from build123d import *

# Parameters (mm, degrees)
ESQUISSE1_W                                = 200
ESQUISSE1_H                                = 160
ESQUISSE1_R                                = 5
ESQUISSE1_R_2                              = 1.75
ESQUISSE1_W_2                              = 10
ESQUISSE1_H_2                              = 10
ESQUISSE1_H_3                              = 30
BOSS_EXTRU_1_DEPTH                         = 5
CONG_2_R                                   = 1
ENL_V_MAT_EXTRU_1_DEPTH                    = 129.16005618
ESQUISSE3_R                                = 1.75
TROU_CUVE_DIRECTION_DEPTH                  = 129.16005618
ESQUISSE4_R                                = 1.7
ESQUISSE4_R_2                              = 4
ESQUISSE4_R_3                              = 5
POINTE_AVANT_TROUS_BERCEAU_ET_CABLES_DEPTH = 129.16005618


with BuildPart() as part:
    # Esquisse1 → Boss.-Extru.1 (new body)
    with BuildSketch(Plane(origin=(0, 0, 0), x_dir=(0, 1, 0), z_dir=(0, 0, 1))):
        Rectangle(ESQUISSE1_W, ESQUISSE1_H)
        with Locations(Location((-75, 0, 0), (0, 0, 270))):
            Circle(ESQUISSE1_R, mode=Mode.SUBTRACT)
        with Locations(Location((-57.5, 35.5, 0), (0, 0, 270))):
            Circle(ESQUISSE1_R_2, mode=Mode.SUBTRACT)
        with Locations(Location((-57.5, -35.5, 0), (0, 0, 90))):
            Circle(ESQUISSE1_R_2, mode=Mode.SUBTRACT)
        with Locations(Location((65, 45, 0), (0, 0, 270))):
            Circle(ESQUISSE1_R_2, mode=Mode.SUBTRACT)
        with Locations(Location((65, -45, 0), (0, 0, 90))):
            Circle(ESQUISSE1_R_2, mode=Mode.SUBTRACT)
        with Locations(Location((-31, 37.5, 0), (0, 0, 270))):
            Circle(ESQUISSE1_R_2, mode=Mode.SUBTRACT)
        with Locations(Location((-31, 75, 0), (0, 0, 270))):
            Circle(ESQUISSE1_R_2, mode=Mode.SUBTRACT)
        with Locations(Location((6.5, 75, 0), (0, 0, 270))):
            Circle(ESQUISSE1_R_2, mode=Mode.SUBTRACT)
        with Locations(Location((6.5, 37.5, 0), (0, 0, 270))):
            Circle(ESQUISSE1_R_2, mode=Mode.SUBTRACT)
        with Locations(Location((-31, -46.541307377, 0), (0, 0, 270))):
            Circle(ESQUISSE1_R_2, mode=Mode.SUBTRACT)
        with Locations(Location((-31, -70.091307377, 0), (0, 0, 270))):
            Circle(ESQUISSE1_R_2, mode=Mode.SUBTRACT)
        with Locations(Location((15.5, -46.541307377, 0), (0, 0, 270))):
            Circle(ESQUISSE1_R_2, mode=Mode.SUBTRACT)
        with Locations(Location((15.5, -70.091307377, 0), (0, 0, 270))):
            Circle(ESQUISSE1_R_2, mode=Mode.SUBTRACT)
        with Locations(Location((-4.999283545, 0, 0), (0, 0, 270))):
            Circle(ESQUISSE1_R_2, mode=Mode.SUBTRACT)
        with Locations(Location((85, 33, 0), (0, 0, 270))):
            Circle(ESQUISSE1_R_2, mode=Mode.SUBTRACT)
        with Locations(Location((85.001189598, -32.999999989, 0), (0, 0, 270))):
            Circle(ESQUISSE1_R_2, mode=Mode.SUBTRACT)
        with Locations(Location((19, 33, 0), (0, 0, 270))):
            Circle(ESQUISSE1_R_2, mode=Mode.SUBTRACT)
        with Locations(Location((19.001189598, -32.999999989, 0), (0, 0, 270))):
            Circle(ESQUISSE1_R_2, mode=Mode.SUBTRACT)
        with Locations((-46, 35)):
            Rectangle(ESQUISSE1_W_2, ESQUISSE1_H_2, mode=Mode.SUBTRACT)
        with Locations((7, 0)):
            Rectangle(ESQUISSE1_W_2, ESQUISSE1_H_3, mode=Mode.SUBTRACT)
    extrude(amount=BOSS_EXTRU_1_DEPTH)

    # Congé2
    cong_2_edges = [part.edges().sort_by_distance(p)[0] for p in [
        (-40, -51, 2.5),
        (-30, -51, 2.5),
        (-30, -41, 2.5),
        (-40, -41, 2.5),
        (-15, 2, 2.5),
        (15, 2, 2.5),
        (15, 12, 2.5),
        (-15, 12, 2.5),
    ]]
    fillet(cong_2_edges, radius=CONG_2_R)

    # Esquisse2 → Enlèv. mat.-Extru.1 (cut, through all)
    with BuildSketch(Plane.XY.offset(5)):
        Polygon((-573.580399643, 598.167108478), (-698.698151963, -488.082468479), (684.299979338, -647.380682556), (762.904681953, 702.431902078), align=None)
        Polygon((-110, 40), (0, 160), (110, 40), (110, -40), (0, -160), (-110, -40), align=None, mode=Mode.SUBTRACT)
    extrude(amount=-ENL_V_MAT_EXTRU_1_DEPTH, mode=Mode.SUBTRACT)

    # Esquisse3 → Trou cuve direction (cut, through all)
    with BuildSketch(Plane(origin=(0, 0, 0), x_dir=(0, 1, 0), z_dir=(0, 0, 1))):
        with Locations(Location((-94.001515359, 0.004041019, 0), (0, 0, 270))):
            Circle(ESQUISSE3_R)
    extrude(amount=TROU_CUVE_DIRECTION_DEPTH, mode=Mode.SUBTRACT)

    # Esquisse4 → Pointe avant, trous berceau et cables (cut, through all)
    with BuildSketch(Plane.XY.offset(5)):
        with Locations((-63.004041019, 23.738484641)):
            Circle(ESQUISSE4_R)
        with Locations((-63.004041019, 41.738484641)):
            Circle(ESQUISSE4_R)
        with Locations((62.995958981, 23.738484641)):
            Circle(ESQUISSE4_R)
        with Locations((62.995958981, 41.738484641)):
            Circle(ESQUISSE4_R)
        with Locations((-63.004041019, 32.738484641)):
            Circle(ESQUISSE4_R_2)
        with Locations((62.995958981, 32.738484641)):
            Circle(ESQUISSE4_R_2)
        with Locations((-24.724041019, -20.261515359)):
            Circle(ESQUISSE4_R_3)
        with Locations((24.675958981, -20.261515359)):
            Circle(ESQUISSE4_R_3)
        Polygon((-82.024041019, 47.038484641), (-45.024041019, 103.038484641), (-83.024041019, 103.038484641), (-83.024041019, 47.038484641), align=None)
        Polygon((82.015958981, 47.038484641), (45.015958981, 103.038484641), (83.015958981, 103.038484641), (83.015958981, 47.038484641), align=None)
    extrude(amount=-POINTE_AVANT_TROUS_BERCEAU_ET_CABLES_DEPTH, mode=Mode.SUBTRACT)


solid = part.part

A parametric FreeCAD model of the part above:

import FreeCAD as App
import Part
import Sketcher

V = App.Vector


def edges_at(feature, points):
    """Names of the edges that pass closest to the given points."""
    edges = feature.Shape.Edges
    near = lambda p: min(range(len(edges)), key=lambda i: edges[i].distToShape(Part.Vertex(*p))[0])
    return sorted({f"Edge{near(p) + 1}" for p in points})

doc = App.newDocument("Part")
body = doc.addObject("PartDesign::Body", "Body")

sketch1 = body.newObject("Sketcher::SketchObject", "Sketch")
sketch1.AttachmentSupport = (doc.getObject("XY_Plane"), [""])
sketch1.MapMode = "FlatFace"
sketch1.addGeometry(Part.LineSegment(V(-80, -100, 0), V(80, -100, 0)), False)
sketch1.addGeometry(Part.LineSegment(V(80, -100, 0), V(80, 100, 0)), False)
sketch1.addGeometry(Part.LineSegment(V(80, 100, 0), V(-80, 100, 0)), False)
sketch1.addGeometry(Part.LineSegment(V(-80, 100, 0), V(-80, -100, 0)), False)
sketch1.addGeometry(Part.Circle(V(35.5, -57.5, 0), V(0, 0, 1), 1.8), False)
sketch1.addGeometry(Part.Circle(V(70.1, -31, 0), V(0, 0, 1), 1.8), False)
sketch1.addGeometry(Part.Circle(V(46.5, -31, 0), V(0, 0, 1), 1.8), False)
sketch1.addGeometry(Part.Circle(V(0, -75, 0), V(0, 0, 1), 5), False)
sketch1.addGeometry(Part.Circle(V(0, -5, 0), V(0, 0, 1), 1.8), False)
sketch1.addGeometry(Part.Circle(V(70.1, 15.5, 0), V(0, 0, 1), 1.8), False)
sketch1.addGeometry(Part.Circle(V(46.5, 15.5, 0), V(0, 0, 1), 1.8), False)
sketch1.addGeometry(Part.Circle(V(45, 65, 0), V(0, 0, 1), 1.8), False)
sketch1.addGeometry(Part.Circle(V(33, 19, 0), V(0, 0, 1), 1.8), False)
sketch1.addGeometry(Part.LineSegment(V(15, 12, 0), V(15, 2, 0)), False)
sketch1.addGeometry(Part.LineSegment(V(15, 2, 0), V(-15, 2, 0)), False)
sketch1.addGeometry(Part.LineSegment(V(-15, 2, 0), V(-15, 12, 0)), False)
sketch1.addGeometry(Part.LineSegment(V(-15, 12, 0), V(15, 12, 0)), False)
sketch1.addGeometry(Part.Circle(V(33, 85, 0), V(0, 0, 1), 1.8), False)
sketch1.addGeometry(Part.Circle(V(-35.5, -57.5, 0), V(0, 0, 1), 1.8), False)
sketch1.addGeometry(Part.LineSegment(V(-30, -41, 0), V(-30, -51, 0)), False)
sketch1.addGeometry(Part.LineSegment(V(-30, -51, 0), V(-40, -51, 0)), False)
sketch1.addGeometry(Part.LineSegment(V(-40, -51, 0), V(-40, -41, 0)), False)
sketch1.addGeometry(Part.LineSegment(V(-40, -41, 0), V(-30, -41, 0)), False)
sketch1.addGeometry(Part.Circle(V(-37.5, -31, 0), V(0, 0, 1), 1.8), False)
sketch1.addGeometry(Part.Circle(V(-75, -31, 0), V(0, 0, 1), 1.8), False)
sketch1.addGeometry(Part.Circle(V(-37.5, 6.5, 0), V(0, 0, 1), 1.8), False)
sketch1.addGeometry(Part.Circle(V(-33, 19, 0), V(0, 0, 1), 1.8), False)
sketch1.addGeometry(Part.Circle(V(-33, 85, 0), V(0, 0, 1), 1.8), False)
sketch1.addGeometry(Part.Circle(V(-75, 6.5, 0), V(0, 0, 1), 1.8), False)
sketch1.addGeometry(Part.Circle(V(-45, 65, 0), V(0, 0, 1), 1.8), False)
sketch1.addConstraint(Sketcher.Constraint("Coincident", 0, 2, 1, 1))
sketch1.addConstraint(Sketcher.Constraint("Coincident", 1, 2, 2, 1))
sketch1.addConstraint(Sketcher.Constraint("Coincident", 2, 2, 3, 1))
sketch1.addConstraint(Sketcher.Constraint("Coincident", 3, 2, 0, 1))
sketch1.addConstraint(Sketcher.Constraint("Coincident", 13, 2, 14, 1))
sketch1.addConstraint(Sketcher.Constraint("Coincident", 14, 2, 15, 1))
sketch1.addConstraint(Sketcher.Constraint("Coincident", 15, 2, 16, 1))
sketch1.addConstraint(Sketcher.Constraint("Coincident", 16, 2, 13, 1))
sketch1.addConstraint(Sketcher.Constraint("Coincident", 19, 2, 20, 1))
sketch1.addConstraint(Sketcher.Constraint("Coincident", 20, 2, 21, 1))
sketch1.addConstraint(Sketcher.Constraint("Coincident", 21, 2, 22, 1))
sketch1.addConstraint(Sketcher.Constraint("Coincident", 22, 2, 19, 1))
sketch1.addConstraint(Sketcher.Constraint("Horizontal", 0))
sketch1.addConstraint(Sketcher.Constraint("Vertical", 1))
sketch1.addConstraint(Sketcher.Constraint("Horizontal", 2))
sketch1.addConstraint(Sketcher.Constraint("Vertical", 3))
sketch1.addConstraint(Sketcher.Constraint("Vertical", 13))
sketch1.addConstraint(Sketcher.Constraint("Horizontal", 14))
sketch1.addConstraint(Sketcher.Constraint("Vertical", 15))
sketch1.addConstraint(Sketcher.Constraint("Horizontal", 16))
sketch1.addConstraint(Sketcher.Constraint("Vertical", 19))
sketch1.addConstraint(Sketcher.Constraint("Horizontal", 20))
sketch1.addConstraint(Sketcher.Constraint("Vertical", 21))
sketch1.addConstraint(Sketcher.Constraint("Horizontal", 22))
sketch1.addConstraint(Sketcher.Constraint("Equal", 4, 5))
sketch1.addConstraint(Sketcher.Constraint("Equal", 5, 6))
sketch1.addConstraint(Sketcher.Constraint("Equal", 6, 8))
sketch1.addConstraint(Sketcher.Constraint("Equal", 8, 9))
sketch1.addConstraint(Sketcher.Constraint("Equal", 9, 10))
sketch1.addConstraint(Sketcher.Constraint("Equal", 10, 11))
sketch1.addConstraint(Sketcher.Constraint("Equal", 11, 12))
sketch1.addConstraint(Sketcher.Constraint("Equal", 12, 17))
sketch1.addConstraint(Sketcher.Constraint("Equal", 17, 18))
sketch1.addConstraint(Sketcher.Constraint("Equal", 18, 23))
sketch1.addConstraint(Sketcher.Constraint("Equal", 23, 24))
sketch1.addConstraint(Sketcher.Constraint("Equal", 24, 25))
sketch1.addConstraint(Sketcher.Constraint("Equal", 25, 26))
sketch1.addConstraint(Sketcher.Constraint("Equal", 26, 27))
sketch1.addConstraint(Sketcher.Constraint("Equal", 27, 28))
sketch1.addConstraint(Sketcher.Constraint("Equal", 28, 29))
sketch1.addConstraint(Sketcher.Constraint("Symmetric", 0, 2, 2, 2, -1, 1))
sketch1.addConstraint(Sketcher.Constraint("Symmetric", 4, 3, 18, 3, -2))
sketch1.addConstraint(Sketcher.Constraint("Symmetric", 11, 3, 29, 3, -2))
sketch1.addConstraint(Sketcher.Constraint("PointOnObject", 7, 3, -2))
sketch1.addConstraint(Sketcher.Constraint("PointOnObject", 8, 3, -2))
sketch1.addConstraint(Sketcher.Constraint("Horizontal", 5, 3, 6, 3))
sketch1.addConstraint(Sketcher.Constraint("Horizontal", 9, 3, 10, 3))
sketch1.addConstraint(Sketcher.Constraint("Horizontal", 6, 3, 23, 3))
sketch1.addConstraint(Sketcher.Constraint("Horizontal", 23, 3, 24, 3))
sketch1.addConstraint(Sketcher.Constraint("Horizontal", 25, 3, 28, 3))
sketch1.addConstraint(Sketcher.Constraint("Vertical", 5, 3, 9, 3))
sketch1.addConstraint(Sketcher.Constraint("Vertical", 6, 3, 10, 3))
sketch1.addConstraint(Sketcher.Constraint("Vertical", 12, 3, 17, 3))
sketch1.addConstraint(Sketcher.Constraint("Vertical", 23, 3, 25, 3))
sketch1.addConstraint(Sketcher.Constraint("Vertical", 26, 3, 27, 3))
sketch1.addConstraint(Sketcher.Constraint("Vertical", 24, 3, 28, 3))
sketch1.addConstraint(Sketcher.Constraint("Equal", 22, 13))
sketch1.addConstraint(Sketcher.Constraint("Equal", 15, 19))
sketch1.addConstraint(Sketcher.Constraint("Diameter", 7, 10.0))
sketch1.addConstraint(Sketcher.Constraint("Diameter", 4, 3.5))
sketch1.addConstraint(Sketcher.Constraint("DistanceX", 0, 1, 0, 2, 160.0))
sketch1.addConstraint(Sketcher.Constraint("DistanceX", 14, 2, 14, 1, 30.0))
sketch1.addConstraint(Sketcher.Constraint("DistanceX", 20, 2, 20, 1, 10.0))
sketch1.addConstraint(Sketcher.Constraint("DistanceY", 1, 1, 1, 2, 200.0))
sketch1.addConstraint(Sketcher.Constraint("DistanceY", 5, 3, -1, 1, 31.0))
sketch1.addConstraint(Sketcher.Constraint("DistanceY", 7, 3, -1, 1, 75.0))
sketch1.addConstraint(Sketcher.Constraint("DistanceX", -1, 1, 11, 3, 45.0))
sketch1.addConstraint(Sketcher.Constraint("DistanceY", -1, 1, 11, 3, 65.0))
sketch1.addConstraint(Sketcher.Constraint("DistanceX", -1, 1, 12, 3, 33.0))
sketch1.addConstraint(Sketcher.Constraint("DistanceX", 24, 3, -1, 1, 75.0))
sketch1.addConstraint(Sketcher.Constraint("DistanceX", 26, 3, -1, 1, 33.0))
sketch1.addConstraint(Sketcher.Constraint("DistanceY", -1, 1, 26, 3, 19.0))
sketch1.addConstraint(Sketcher.Constraint("DistanceY", -1, 1, 27, 3, 85.0))
sketch1.addConstraint(Sketcher.Constraint("DistanceX", -1, 1, 13, 2, 15.0))
sketch1.addConstraint(Sketcher.Constraint("DistanceY", -1, 1, 13, 2, 2.0))
sketch1.addConstraint(Sketcher.Constraint("DistanceX", 19, 2, -1, 1, 30.0))
sketch1.addConstraint(Sketcher.Constraint("DistanceY", 19, 2, -1, 1, 51.0))
sketch1.addConstraint(Sketcher.Constraint("DistanceY", 4, 3, 9, 3, 73.0))
sketch1.addConstraint(Sketcher.Constraint("DistanceY", 12, 3, 17, 3, 66.0))
sketch1.addConstraint(Sketcher.Constraint("DistanceX", 18, 3, 4, 3, 71.0))
sketch1.addConstraint(Sketcher.Constraint("DistanceX", 23, 3, 18, 3, 2.0))
sketch1.addConstraint(Sketcher.Constraint("DistanceY", 18, 3, 25, 3, 64.0))
sketch1.addConstraint(Sketcher.Constraint("DistanceY", 4, 3, -1, 1, 57.5))
sketch1.addConstraint(Sketcher.Constraint("DistanceX", 6, 3, 5, 3, 23.55))
sketch1.addConstraint(Sketcher.Constraint("DistanceY", -1, 1, 12, 3, 19.00119))
sketch1.addConstraint(Sketcher.Constraint("DistanceX", -1, 1, 5, 3, 70.091307))
sketch1.addConstraint(Sketcher.Constraint("DistanceY", 8, 3, -1, 1, 4.999284))
pad1 = body.newObject("PartDesign::Pad", "Pad")
pad1.Profile = sketch1
pad1.Length = 5
doc.recompute()

fillet = body.newObject("PartDesign::Fillet", "Fillet")
fillet.Base = (pad1, edges_at(pad1, [
    (-40, -51, 2.5),
    (-30, -51, 2.5),
    (-30, -41, 2.5),
    (-40, -41, 2.5),
    (-15, 2, 2.5),
    (15, 2, 2.5),
    (15, 12, 2.5),
    (-15, 12, 2.5),
]))
fillet.Radius = 1

sketch2 = body.newObject("Sketcher::SketchObject", "Sketch001")
sketch2.AttachmentSupport = (doc.getObject("XY_Plane"), [""])
sketch2.MapMode = "FlatFace"
sketch2.AttachmentOffset = App.Placement(V(0, 0, 5), App.Rotation())
sketch2.addGeometry(Part.LineSegment(V(-574, 598, 0), V(-699, -488, 0)), False)
sketch2.addGeometry(Part.LineSegment(V(-699, -488, 0), V(684, -647, 0)), False)
sketch2.addGeometry(Part.LineSegment(V(684, -647, 0), V(763, 702, 0)), False)
sketch2.addGeometry(Part.LineSegment(V(763, 702, 0), V(-574, 598, 0)), False)
sketch2.addGeometry(Part.LineSegment(V(-110, -40, 0), V(-110, 40, 0)), False)
sketch2.addGeometry(Part.LineSegment(V(-110, 40, 0), V(0, 160, 0)), False)
sketch2.addGeometry(Part.LineSegment(V(0, 160, 0), V(110, 40, 0)), False)
sketch2.addGeometry(Part.LineSegment(V(110, 40, 0), V(110, -40, 0)), False)
sketch2.addGeometry(Part.LineSegment(V(110, -40, 0), V(0, -160, 0)), False)
sketch2.addGeometry(Part.LineSegment(V(0, -160, 0), V(-110, -40, 0)), False)
sketch2.addConstraint(Sketcher.Constraint("Coincident", 0, 2, 1, 1))
sketch2.addConstraint(Sketcher.Constraint("Coincident", 1, 2, 2, 1))
sketch2.addConstraint(Sketcher.Constraint("Coincident", 2, 2, 3, 1))
sketch2.addConstraint(Sketcher.Constraint("Coincident", 3, 2, 0, 1))
sketch2.addConstraint(Sketcher.Constraint("Coincident", 4, 2, 5, 1))
sketch2.addConstraint(Sketcher.Constraint("Coincident", 5, 2, 6, 1))
sketch2.addConstraint(Sketcher.Constraint("Coincident", 6, 2, 7, 1))
sketch2.addConstraint(Sketcher.Constraint("Coincident", 7, 2, 8, 1))
sketch2.addConstraint(Sketcher.Constraint("Coincident", 8, 2, 9, 1))
sketch2.addConstraint(Sketcher.Constraint("Coincident", 9, 2, 4, 1))
sketch2.addConstraint(Sketcher.Constraint("Vertical", 4))
sketch2.addConstraint(Sketcher.Constraint("Vertical", 7))
sketch2.addConstraint(Sketcher.Constraint("Symmetric", 4, 2, 7, 2, -1, 1))
sketch2.addConstraint(Sketcher.Constraint("Symmetric", 5, 2, 8, 2, -1, 1))
sketch2.addConstraint(Sketcher.Constraint("PointOnObject", 5, 2, -2))
sketch2.addConstraint(Sketcher.Constraint("Perpendicular", 0, 1))
sketch2.addConstraint(Sketcher.Constraint("Parallel", 6, 9))
sketch2.addConstraint(Sketcher.Constraint("Horizontal", 4, 2, 6, 2))
sketch2.addConstraint(Sketcher.Constraint("DistanceY", 4, 1, 4, 2, 80.0))
sketch2.addConstraint(Sketcher.Constraint("DistanceX", 4, 2, -1, 1, 110.0))
sketch2.addConstraint(Sketcher.Constraint("DistanceY", -1, 1, 5, 2, 160.0))
sketch2.addConstraint(Sketcher.Constraint("DistanceX", 3, 2, -1, 1, 573.5804))
sketch2.addConstraint(Sketcher.Constraint("Distance", 0, 1093.431569))
sketch2.addConstraint(Sketcher.Constraint("Distance", 3, 1340.545979))
sketch2.addConstraint(Sketcher.Constraint("DistanceX", 0, 2, -1, 1, 698.698152))
sketch2.addConstraint(Sketcher.Constraint("DistanceY", 0, 2, -1, 1, 488.082468))
sketch2.addConstraint(Sketcher.Constraint("DistanceX", -1, 1, 1, 2, 684.299979))
sketch2.addConstraint(Sketcher.Constraint("DistanceX", -1, 1, 2, 2, 762.904682))
pocket1 = body.newObject("PartDesign::Pocket", "Pocket")
pocket1.Profile = sketch2
pocket1.Type = "ThroughAll"

sketch3 = body.newObject("Sketcher::SketchObject", "Sketch002")
sketch3.AttachmentSupport = (doc.getObject("XY_Plane"), [""])
sketch3.MapMode = "FlatFace"
sketch3.addGeometry(Part.Circle(V(0, -94, 0), V(0, 0, 1), 1.8), False)
sketch3.addConstraint(Sketcher.Constraint("Diameter", 0, 3.5))
sketch3.addConstraint(Sketcher.Constraint("DistanceX", 0, 3, -1, 1, 0.004041))
sketch3.addConstraint(Sketcher.Constraint("DistanceY", 0, 3, -1, 1, 94.001515))
pocket2 = body.newObject("PartDesign::Pocket", "Pocket001")
pocket2.Profile = sketch3
pocket2.Type = "ThroughAll"
pocket2.Reversed = True

sketch4 = body.newObject("Sketcher::SketchObject", "Sketch003")
sketch4.AttachmentSupport = (doc.getObject("XY_Plane"), [""])
sketch4.MapMode = "FlatFace"
sketch4.AttachmentOffset = App.Placement(V(0, 0, 5), App.Rotation())
sketch4.addGeometry(Part.Circle(V(-63, 23.7, 0), V(0, 0, 1), 1.7), False)
sketch4.addGeometry(Part.Circle(V(-63, 41.7, 0), V(0, 0, 1), 1.7), False)
sketch4.addGeometry(Part.Circle(V(63, 23.7, 0), V(0, 0, 1), 1.7), False)
sketch4.addGeometry(Part.Circle(V(63, 41.7, 0), V(0, 0, 1), 1.7), False)
sketch4.addGeometry(Part.Circle(V(-63, 32.7, 0), V(0, 0, 1), 4), False)
sketch4.addGeometry(Part.Circle(V(63, 32.7, 0), V(0, 0, 1), 4), False)
sketch4.addGeometry(Part.Circle(V(-24.7, -20.3, 0), V(0, 0, 1), 5), False)
sketch4.addGeometry(Part.Circle(V(24.7, -20.3, 0), V(0, 0, 1), 5), False)
sketch4.addGeometry(Part.LineSegment(V(-82, 47, 0), V(-45, 103, 0)), False)
sketch4.addGeometry(Part.LineSegment(V(-45, 103, 0), V(-83, 103, 0)), False)
sketch4.addGeometry(Part.LineSegment(V(-83, 103, 0), V(-83, 47, 0)), False)
sketch4.addGeometry(Part.LineSegment(V(-83, 47, 0), V(-82, 47, 0)), False)
sketch4.addGeometry(Part.LineSegment(V(45, 103, 0), V(82, 47, 0)), False)
sketch4.addGeometry(Part.LineSegment(V(82, 47, 0), V(83, 47, 0)), False)
sketch4.addGeometry(Part.LineSegment(V(83, 47, 0), V(83, 103, 0)), False)
sketch4.addGeometry(Part.LineSegment(V(83, 103, 0), V(45, 103, 0)), False)
sketch4.addConstraint(Sketcher.Constraint("Coincident", 8, 2, 9, 1))
sketch4.addConstraint(Sketcher.Constraint("Coincident", 9, 2, 10, 1))
sketch4.addConstraint(Sketcher.Constraint("Coincident", 10, 2, 11, 1))
sketch4.addConstraint(Sketcher.Constraint("Coincident", 11, 2, 8, 1))
sketch4.addConstraint(Sketcher.Constraint("Coincident", 12, 2, 13, 1))
sketch4.addConstraint(Sketcher.Constraint("Coincident", 13, 2, 14, 1))
sketch4.addConstraint(Sketcher.Constraint("Coincident", 14, 2, 15, 1))
sketch4.addConstraint(Sketcher.Constraint("Coincident", 15, 2, 12, 1))
sketch4.addConstraint(Sketcher.Constraint("Horizontal", 9))
sketch4.addConstraint(Sketcher.Constraint("Vertical", 10))
sketch4.addConstraint(Sketcher.Constraint("Horizontal", 11))
sketch4.addConstraint(Sketcher.Constraint("Horizontal", 13))
sketch4.addConstraint(Sketcher.Constraint("Vertical", 14))
sketch4.addConstraint(Sketcher.Constraint("Horizontal", 15))
sketch4.addConstraint(Sketcher.Constraint("Equal", 0, 1))
sketch4.addConstraint(Sketcher.Constraint("Equal", 1, 2))
sketch4.addConstraint(Sketcher.Constraint("Equal", 2, 3))
sketch4.addConstraint(Sketcher.Constraint("Equal", 4, 5))
sketch4.addConstraint(Sketcher.Constraint("Equal", 6, 7))
sketch4.addConstraint(Sketcher.Constraint("Horizontal", 0, 3, 2, 3))
sketch4.addConstraint(Sketcher.Constraint("Horizontal", 1, 3, 3, 3))
sketch4.addConstraint(Sketcher.Constraint("Horizontal", 4, 3, 5, 3))
sketch4.addConstraint(Sketcher.Constraint("Horizontal", 6, 3, 7, 3))
sketch4.addConstraint(Sketcher.Constraint("Horizontal", 11, 2, 12, 2))
sketch4.addConstraint(Sketcher.Constraint("Horizontal", 9, 2, 14, 2))
sketch4.addConstraint(Sketcher.Constraint("Vertical", 0, 3, 1, 3))
sketch4.addConstraint(Sketcher.Constraint("Vertical", 2, 3, 3, 3))
sketch4.addConstraint(Sketcher.Constraint("Vertical", 1, 3, 4, 3))
sketch4.addConstraint(Sketcher.Constraint("Vertical", 3, 3, 5, 3))
sketch4.addConstraint(Sketcher.Constraint("Equal", 11, 13))
sketch4.addConstraint(Sketcher.Constraint("Equal", 9, 15))
sketch4.addConstraint(Sketcher.Constraint("Diameter", 4, 8.0))
sketch4.addConstraint(Sketcher.Constraint("Diameter", 6, 10.0))
sketch4.addConstraint(Sketcher.Constraint("Diameter", 0, 3.4))
sketch4.addConstraint(Sketcher.Constraint("DistanceX", 9, 2, 9, 1, 38.0))
sketch4.addConstraint(Sketcher.Constraint("DistanceX", 11, 1, 11, 2, 1.0))
sketch4.addConstraint(Sketcher.Constraint("DistanceY", 10, 2, 10, 1, 56.0))
sketch4.addConstraint(Sketcher.Constraint("DistanceY", 0, 3, 1, 3, 18.0))
sketch4.addConstraint(Sketcher.Constraint("DistanceX", 0, 3, 2, 3, 126.0))
sketch4.addConstraint(Sketcher.Constraint("DistanceY", 0, 3, 4, 3, 9.0))
sketch4.addConstraint(Sketcher.Constraint("DistanceY", 6, 3, 0, 3, 44.0))
sketch4.addConstraint(Sketcher.Constraint("DistanceX", 6, 3, 7, 3, 49.4))
sketch4.addConstraint(Sketcher.Constraint("DistanceY", 1, 3, 8, 2, 61.3))
sketch4.addConstraint(Sketcher.Constraint("DistanceX", 8, 2, 6, 3, 20.3))
sketch4.addConstraint(Sketcher.Constraint("DistanceX", 0, 3, 6, 3, 38.28))
sketch4.addConstraint(Sketcher.Constraint("DistanceX", 3, 3, 12, 2, 19.02))
sketch4.addConstraint(Sketcher.Constraint("DistanceX", 0, 3, -1, 1, 63.004041))
sketch4.addConstraint(Sketcher.Constraint("DistanceY", -1, 1, 0, 3, 23.738485))
pocket3 = body.newObject("PartDesign::Pocket", "Pocket002")
pocket3.Profile = sketch4
pocket3.Type = "ThroughAll"

doc.recompute()
